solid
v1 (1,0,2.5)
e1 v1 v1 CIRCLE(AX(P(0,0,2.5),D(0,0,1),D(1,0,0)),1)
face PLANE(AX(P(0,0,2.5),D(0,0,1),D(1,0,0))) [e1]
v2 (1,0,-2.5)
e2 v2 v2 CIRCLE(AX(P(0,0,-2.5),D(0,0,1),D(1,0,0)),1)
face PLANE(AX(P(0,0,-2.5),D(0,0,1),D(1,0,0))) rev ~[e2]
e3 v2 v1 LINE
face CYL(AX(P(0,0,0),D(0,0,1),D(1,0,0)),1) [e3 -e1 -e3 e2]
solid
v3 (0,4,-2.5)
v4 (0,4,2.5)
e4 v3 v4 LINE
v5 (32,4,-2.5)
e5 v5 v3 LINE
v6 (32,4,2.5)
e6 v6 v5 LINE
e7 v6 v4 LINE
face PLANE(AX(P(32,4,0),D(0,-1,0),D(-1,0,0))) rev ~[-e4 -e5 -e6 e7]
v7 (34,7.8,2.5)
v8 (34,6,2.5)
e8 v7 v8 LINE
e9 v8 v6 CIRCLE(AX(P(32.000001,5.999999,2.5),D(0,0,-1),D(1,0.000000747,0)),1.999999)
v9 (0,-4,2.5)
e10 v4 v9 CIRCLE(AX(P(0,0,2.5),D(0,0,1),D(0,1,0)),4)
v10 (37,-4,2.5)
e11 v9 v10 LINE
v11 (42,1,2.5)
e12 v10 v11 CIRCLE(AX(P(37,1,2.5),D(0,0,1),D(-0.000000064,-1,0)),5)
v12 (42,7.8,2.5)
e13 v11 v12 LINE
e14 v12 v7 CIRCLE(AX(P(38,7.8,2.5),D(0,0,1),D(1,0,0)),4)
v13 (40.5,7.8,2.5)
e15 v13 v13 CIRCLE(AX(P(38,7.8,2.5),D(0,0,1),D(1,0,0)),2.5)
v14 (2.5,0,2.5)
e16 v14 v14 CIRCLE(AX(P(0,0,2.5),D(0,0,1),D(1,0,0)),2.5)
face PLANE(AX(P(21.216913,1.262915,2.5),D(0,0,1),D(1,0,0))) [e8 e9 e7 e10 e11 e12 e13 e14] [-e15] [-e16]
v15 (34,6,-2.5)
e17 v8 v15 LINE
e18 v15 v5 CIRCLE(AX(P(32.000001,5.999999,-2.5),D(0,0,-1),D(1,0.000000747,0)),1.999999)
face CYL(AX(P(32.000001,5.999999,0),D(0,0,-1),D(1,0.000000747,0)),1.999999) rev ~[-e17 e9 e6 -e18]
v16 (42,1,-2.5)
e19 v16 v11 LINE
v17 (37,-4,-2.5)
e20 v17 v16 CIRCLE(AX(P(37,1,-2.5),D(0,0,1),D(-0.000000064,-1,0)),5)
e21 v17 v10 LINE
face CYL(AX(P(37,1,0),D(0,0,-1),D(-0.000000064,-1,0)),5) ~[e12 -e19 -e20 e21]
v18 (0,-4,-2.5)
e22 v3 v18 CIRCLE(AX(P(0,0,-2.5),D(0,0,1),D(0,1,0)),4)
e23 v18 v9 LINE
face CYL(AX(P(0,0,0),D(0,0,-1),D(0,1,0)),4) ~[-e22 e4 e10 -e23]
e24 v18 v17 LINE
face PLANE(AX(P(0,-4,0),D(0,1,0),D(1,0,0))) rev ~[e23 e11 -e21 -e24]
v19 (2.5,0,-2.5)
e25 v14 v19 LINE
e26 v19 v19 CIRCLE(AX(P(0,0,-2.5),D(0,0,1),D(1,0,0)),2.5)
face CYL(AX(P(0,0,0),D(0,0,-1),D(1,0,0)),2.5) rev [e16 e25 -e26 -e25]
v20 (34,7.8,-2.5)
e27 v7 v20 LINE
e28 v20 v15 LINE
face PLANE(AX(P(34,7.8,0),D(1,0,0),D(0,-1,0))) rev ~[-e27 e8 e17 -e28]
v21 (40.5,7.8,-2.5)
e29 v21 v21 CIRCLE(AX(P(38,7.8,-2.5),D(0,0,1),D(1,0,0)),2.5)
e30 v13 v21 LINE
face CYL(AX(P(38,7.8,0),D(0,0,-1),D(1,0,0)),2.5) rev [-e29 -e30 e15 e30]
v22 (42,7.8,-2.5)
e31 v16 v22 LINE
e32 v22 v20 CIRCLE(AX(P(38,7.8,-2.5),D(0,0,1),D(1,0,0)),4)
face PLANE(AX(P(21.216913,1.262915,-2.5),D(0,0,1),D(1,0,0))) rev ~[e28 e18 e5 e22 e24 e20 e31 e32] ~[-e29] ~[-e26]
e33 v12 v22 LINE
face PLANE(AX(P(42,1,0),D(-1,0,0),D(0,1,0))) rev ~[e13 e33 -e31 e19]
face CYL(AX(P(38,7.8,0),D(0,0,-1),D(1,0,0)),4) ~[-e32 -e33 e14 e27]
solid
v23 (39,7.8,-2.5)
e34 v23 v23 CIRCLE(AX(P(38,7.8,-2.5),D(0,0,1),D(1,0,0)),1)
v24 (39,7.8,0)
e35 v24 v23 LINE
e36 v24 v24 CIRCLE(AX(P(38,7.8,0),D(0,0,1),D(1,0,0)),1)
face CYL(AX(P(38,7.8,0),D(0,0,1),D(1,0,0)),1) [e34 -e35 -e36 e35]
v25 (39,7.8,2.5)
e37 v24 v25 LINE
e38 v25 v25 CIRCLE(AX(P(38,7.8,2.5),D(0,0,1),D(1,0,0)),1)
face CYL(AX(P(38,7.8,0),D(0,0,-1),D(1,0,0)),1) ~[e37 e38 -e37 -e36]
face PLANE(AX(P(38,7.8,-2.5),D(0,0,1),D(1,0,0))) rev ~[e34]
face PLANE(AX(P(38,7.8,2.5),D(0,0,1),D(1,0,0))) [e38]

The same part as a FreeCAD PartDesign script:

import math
import FreeCAD as App
import Part
import Sketcher

doc = App.newDocument("Part")
body = doc.addObject("PartDesign::Body", "Body")
body.AllowCompound = True

# Sketch on XY plane
sketch1 = body.newObject("Sketcher::SketchObject", "Sketch")
sketch1.AttachmentSupport = (doc.getObject("XY_Plane"), [""])
sketch1.MapMode = "FlatFace"
sketch1.addGeometry([
    Part.LineSegment(App.Vector(32, 4, 0), App.Vector(0, 4, 0)),  # 0
    Part.ArcOfCircle(Part.Circle(App.Vector(0, 0, 0), App.Vector(0, 0, 1), 4), math.radians(90), math.radians(270)),  # 1
    Part.LineSegment(App.Vector(0, -4, 0), App.Vector(37, -4, 0)),  # 2
    Part.ArcOfCircle(Part.Circle(App.Vector(37, 1, 0), App.Vector(0, 0, 1), 5), math.radians(-90.000004), math.radians(0.000004)),  # 3
    Part.LineSegment(App.Vector(42, 1, 0), App.Vector(42, 7.8, 0)),  # 4
    Part.ArcOfCircle(Part.Circle(App.Vector(38, 7.8, 0), App.Vector(0, 0, 1), 4), math.radians(0), math.radians(180)),  # 5
    Part.LineSegment(App.Vector(34, 7.8, 0), App.Vector(34, 6, 0)),  # 6
    Part.ArcOfCircle(Part.Circle(App.Vector(32.000001, 5.999999, 0), App.Vector(0, 0, 1), 1.999999), math.radians(-90.000043), math.radians(0.000043)),  # 7
    Part.Circle(App.Vector(0, 0, 0), App.Vector(0, 0, 1), 2.5),  # 8
    Part.Circle(App.Vector(38, 7.8, 0), App.Vector(0, 0, 1), 2.5),  # 9
    Part.Circle(App.Vector(38, 7.8, 0), App.Vector(0, 0, 1), 1),  # 10
    Part.Circle(App.Vector(0, 0, 0), App.Vector(0, 0, 1), 1),  # 11
], False)
sketch1.addConstraint([
    Sketcher.Constraint("Tangent", 0, 2, 1, 1),
    Sketcher.Constraint("Tangent", 1, 2, 2, 1),
    Sketcher.Constraint("Tangent", 2, 2, 3, 1),
    Sketcher.Constraint("Tangent", 3, 2, 4, 1),
    Sketcher.Constraint("Tangent", 4, 2, 5, 1),
    Sketcher.Constraint("Tangent", 5, 2, 6, 1),
    Sketcher.Constraint("Tangent", 6, 2, 7, 2),
    Sketcher.Constraint("Tangent", 7, 1, 0, 1),
    Sketcher.Constraint("Horizontal", 0),
    Sketcher.Constraint("Horizontal", 2),
    Sketcher.Constraint("Vertical", 4),
    Sketcher.Constraint("Vertical", 6),
    Sketcher.Constraint("Coincident", 1, 3, -1, 1),
    Sketcher.Constraint("Coincident", 8, 3, -1, 1),
    Sketcher.Constraint("Coincident", 11, 3, -1, 1),
    Sketcher.Constraint("Coincident", 9, 3, 5, 3),
    Sketcher.Constraint("Coincident", 10, 3, 5, 3),
    Sketcher.Constraint("Equal", 1, 5),
    Sketcher.Constraint("Equal", 8, 9),
    Sketcher.Constraint("Equal", 10, 11),
    Sketcher.Constraint("Diameter", 8, 5.0),
    Sketcher.Constraint("Diameter", 10, 2.0),
    Sketcher.Constraint("Radius", 1, 4.0),
    Sketcher.Constraint("Radius", 3, 5.0),
    Sketcher.Constraint("Radius", 7, 1.999999),
    Sketcher.Constraint("DistanceX", 0, 2, 0, 1, 32.0),
    Sketcher.Constraint("DistanceY", 4, 1, 4, 2, 6.8),
])
pad1 = body.newObject("PartDesign::Pad", "Pad")
pad1.Profile = sketch1
pad1.Length = 5
pad1.Midplane = True

doc.recompute()
